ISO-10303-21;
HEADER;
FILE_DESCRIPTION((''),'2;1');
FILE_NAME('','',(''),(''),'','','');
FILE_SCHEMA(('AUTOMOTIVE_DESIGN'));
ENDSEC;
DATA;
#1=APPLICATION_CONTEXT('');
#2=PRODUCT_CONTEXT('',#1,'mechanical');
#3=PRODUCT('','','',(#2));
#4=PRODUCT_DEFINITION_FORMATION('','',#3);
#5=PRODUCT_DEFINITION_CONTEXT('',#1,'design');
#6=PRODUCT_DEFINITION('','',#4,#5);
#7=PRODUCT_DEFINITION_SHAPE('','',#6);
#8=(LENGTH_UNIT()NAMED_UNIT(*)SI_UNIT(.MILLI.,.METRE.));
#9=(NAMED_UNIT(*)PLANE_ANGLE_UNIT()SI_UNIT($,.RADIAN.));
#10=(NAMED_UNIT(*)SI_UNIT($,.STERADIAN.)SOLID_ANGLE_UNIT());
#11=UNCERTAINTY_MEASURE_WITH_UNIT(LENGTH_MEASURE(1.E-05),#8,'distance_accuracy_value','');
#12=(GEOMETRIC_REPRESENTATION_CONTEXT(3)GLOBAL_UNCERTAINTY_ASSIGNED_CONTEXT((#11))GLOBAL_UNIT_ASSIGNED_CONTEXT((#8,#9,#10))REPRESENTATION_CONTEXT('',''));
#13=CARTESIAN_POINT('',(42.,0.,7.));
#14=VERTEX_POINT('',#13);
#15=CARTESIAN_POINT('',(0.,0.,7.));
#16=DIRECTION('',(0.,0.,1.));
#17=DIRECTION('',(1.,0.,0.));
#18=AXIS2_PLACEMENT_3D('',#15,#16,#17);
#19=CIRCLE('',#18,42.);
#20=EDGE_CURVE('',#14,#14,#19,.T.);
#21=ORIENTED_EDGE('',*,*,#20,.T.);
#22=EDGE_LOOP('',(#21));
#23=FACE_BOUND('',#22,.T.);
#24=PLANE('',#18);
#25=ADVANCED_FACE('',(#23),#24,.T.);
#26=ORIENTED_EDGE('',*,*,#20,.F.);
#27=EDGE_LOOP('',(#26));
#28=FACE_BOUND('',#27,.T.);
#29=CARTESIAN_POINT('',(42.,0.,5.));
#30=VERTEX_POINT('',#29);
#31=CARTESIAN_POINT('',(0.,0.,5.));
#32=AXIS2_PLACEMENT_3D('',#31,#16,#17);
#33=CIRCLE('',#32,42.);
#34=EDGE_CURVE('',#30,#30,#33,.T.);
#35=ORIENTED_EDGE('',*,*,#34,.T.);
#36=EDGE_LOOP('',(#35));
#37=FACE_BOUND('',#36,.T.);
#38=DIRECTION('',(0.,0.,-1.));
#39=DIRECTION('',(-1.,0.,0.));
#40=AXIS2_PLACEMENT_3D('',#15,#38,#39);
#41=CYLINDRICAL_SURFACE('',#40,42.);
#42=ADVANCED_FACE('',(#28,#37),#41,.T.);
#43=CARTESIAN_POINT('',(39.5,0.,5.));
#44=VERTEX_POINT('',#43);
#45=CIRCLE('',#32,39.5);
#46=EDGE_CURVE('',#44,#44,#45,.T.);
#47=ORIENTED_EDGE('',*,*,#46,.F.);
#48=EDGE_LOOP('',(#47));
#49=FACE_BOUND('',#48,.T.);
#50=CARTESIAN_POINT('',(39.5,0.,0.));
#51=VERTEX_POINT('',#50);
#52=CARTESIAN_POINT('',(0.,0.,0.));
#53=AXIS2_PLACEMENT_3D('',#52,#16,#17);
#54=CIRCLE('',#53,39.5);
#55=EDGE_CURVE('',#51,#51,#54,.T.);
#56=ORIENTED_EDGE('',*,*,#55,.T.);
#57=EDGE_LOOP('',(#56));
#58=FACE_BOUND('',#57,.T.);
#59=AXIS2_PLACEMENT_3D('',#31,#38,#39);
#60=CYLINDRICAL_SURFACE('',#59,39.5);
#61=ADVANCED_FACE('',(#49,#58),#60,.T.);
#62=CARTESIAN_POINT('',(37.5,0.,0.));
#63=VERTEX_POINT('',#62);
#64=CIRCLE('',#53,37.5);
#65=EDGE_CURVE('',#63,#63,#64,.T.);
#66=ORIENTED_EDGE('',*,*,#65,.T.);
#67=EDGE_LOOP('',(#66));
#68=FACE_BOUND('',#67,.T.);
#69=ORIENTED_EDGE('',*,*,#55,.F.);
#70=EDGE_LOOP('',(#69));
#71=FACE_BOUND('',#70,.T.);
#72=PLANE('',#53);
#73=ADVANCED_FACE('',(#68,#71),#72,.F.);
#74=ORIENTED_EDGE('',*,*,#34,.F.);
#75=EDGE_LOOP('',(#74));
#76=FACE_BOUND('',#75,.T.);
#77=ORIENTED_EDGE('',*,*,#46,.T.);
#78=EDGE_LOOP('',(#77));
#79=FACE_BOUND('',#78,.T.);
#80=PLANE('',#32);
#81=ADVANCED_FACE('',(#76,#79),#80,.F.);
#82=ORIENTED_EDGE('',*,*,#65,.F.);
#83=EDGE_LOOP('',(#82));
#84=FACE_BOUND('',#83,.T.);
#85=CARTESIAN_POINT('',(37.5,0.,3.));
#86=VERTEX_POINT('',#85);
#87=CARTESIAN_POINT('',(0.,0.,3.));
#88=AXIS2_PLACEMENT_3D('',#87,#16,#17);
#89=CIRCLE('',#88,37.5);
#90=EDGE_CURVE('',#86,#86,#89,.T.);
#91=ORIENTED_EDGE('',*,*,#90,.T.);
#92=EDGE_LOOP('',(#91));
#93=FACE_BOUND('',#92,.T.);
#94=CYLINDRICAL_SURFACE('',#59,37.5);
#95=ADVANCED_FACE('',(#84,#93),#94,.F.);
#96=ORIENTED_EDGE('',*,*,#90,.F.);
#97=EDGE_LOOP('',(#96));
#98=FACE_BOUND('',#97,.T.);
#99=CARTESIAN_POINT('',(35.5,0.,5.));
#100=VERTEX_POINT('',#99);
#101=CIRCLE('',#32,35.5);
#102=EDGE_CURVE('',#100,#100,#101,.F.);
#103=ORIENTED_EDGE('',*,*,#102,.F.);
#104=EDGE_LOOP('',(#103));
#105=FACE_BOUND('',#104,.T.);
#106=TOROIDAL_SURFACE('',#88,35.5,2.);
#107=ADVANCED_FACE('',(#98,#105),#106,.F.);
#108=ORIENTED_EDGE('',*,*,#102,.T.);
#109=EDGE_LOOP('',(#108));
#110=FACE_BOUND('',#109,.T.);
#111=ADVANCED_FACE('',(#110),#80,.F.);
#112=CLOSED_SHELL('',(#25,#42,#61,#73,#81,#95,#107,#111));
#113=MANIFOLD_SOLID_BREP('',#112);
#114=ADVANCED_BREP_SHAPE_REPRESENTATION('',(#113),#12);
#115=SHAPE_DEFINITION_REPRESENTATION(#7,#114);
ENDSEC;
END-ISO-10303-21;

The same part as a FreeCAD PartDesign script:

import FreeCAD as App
import Part
import Sketcher

V = App.Vector


def edges_at(feature, points):
    """Names of the edges that pass closest to the given points."""
    edges = feature.Shape.Edges
    near = lambda p: min(range(len(edges)), key=lambda i: edges[i].distToShape(Part.Vertex(*p))[0])
    return sorted({f"Edge{near(p) + 1}" for p in points})

doc = App.newDocument("Part")
body = doc.addObject("PartDesign::Body", "Body")

sketch1 = doc.addObject("Sketcher::SketchObject", "Sketch")
body.addObject(sketch1)
sketch1.AttachmentSupport = (doc.XY_Plane, [""])
sketch1.MapMode = "FlatFace"
sketch1.addGeometry([
    Part.Circle(V(0, 0, 0), V(0, 0, 1), 40),
    Part.Circle(V(0, 0, 0), V(0, 0, 1), 38),
], False)
sketch1.addConstraint([
    Sketcher.Constraint("Coincident", 0, 3, -1, 1),
    Sketcher.Constraint("Coincident", 1, 3, -1, 1),
    Sketcher.Constraint("Diameter", 0, 79.0),
    Sketcher.Constraint("Diameter", 1, 75.0),
])
pad1 = doc.addObject("PartDesign::Pad", "Pad")
body.addObject(pad1)
pad1.Profile = sketch1
pad1.Length = 5

sketch2 = doc.addObject("Sketcher::SketchObject", "Sketch001")
body.addObject(sketch2)
sketch2.AttachmentSupport = (doc.XY_Plane, [""])
sketch2.MapMode = "FlatFace"
sketch2.AttachmentOffset = App.Placement(V(0, 0, 5), App.Rotation())
sketch2.addGeometry(Part.Circle(V(0, 0, 0), V(0, 0, 1), 42), False)
sketch2.addConstraint([
    Sketcher.Constraint("Coincident", 0, 3, -1, 1),
    Sketcher.Constraint("Diameter", 0, 84.0),
])
pad2 = doc.addObject("PartDesign::Pad", "Pad001")
body.addObject(pad2)
pad2.Profile = sketch2
pad2.Length = 2
doc.recompute()

fillet = doc.addObject("PartDesign::Fillet", "Fillet")
body.addObject(fillet)
fillet.Base = (pad2, edges_at(pad2, [(-37.5, 0, 5)]))
fillet.Radius = 2

doc.recompute()
